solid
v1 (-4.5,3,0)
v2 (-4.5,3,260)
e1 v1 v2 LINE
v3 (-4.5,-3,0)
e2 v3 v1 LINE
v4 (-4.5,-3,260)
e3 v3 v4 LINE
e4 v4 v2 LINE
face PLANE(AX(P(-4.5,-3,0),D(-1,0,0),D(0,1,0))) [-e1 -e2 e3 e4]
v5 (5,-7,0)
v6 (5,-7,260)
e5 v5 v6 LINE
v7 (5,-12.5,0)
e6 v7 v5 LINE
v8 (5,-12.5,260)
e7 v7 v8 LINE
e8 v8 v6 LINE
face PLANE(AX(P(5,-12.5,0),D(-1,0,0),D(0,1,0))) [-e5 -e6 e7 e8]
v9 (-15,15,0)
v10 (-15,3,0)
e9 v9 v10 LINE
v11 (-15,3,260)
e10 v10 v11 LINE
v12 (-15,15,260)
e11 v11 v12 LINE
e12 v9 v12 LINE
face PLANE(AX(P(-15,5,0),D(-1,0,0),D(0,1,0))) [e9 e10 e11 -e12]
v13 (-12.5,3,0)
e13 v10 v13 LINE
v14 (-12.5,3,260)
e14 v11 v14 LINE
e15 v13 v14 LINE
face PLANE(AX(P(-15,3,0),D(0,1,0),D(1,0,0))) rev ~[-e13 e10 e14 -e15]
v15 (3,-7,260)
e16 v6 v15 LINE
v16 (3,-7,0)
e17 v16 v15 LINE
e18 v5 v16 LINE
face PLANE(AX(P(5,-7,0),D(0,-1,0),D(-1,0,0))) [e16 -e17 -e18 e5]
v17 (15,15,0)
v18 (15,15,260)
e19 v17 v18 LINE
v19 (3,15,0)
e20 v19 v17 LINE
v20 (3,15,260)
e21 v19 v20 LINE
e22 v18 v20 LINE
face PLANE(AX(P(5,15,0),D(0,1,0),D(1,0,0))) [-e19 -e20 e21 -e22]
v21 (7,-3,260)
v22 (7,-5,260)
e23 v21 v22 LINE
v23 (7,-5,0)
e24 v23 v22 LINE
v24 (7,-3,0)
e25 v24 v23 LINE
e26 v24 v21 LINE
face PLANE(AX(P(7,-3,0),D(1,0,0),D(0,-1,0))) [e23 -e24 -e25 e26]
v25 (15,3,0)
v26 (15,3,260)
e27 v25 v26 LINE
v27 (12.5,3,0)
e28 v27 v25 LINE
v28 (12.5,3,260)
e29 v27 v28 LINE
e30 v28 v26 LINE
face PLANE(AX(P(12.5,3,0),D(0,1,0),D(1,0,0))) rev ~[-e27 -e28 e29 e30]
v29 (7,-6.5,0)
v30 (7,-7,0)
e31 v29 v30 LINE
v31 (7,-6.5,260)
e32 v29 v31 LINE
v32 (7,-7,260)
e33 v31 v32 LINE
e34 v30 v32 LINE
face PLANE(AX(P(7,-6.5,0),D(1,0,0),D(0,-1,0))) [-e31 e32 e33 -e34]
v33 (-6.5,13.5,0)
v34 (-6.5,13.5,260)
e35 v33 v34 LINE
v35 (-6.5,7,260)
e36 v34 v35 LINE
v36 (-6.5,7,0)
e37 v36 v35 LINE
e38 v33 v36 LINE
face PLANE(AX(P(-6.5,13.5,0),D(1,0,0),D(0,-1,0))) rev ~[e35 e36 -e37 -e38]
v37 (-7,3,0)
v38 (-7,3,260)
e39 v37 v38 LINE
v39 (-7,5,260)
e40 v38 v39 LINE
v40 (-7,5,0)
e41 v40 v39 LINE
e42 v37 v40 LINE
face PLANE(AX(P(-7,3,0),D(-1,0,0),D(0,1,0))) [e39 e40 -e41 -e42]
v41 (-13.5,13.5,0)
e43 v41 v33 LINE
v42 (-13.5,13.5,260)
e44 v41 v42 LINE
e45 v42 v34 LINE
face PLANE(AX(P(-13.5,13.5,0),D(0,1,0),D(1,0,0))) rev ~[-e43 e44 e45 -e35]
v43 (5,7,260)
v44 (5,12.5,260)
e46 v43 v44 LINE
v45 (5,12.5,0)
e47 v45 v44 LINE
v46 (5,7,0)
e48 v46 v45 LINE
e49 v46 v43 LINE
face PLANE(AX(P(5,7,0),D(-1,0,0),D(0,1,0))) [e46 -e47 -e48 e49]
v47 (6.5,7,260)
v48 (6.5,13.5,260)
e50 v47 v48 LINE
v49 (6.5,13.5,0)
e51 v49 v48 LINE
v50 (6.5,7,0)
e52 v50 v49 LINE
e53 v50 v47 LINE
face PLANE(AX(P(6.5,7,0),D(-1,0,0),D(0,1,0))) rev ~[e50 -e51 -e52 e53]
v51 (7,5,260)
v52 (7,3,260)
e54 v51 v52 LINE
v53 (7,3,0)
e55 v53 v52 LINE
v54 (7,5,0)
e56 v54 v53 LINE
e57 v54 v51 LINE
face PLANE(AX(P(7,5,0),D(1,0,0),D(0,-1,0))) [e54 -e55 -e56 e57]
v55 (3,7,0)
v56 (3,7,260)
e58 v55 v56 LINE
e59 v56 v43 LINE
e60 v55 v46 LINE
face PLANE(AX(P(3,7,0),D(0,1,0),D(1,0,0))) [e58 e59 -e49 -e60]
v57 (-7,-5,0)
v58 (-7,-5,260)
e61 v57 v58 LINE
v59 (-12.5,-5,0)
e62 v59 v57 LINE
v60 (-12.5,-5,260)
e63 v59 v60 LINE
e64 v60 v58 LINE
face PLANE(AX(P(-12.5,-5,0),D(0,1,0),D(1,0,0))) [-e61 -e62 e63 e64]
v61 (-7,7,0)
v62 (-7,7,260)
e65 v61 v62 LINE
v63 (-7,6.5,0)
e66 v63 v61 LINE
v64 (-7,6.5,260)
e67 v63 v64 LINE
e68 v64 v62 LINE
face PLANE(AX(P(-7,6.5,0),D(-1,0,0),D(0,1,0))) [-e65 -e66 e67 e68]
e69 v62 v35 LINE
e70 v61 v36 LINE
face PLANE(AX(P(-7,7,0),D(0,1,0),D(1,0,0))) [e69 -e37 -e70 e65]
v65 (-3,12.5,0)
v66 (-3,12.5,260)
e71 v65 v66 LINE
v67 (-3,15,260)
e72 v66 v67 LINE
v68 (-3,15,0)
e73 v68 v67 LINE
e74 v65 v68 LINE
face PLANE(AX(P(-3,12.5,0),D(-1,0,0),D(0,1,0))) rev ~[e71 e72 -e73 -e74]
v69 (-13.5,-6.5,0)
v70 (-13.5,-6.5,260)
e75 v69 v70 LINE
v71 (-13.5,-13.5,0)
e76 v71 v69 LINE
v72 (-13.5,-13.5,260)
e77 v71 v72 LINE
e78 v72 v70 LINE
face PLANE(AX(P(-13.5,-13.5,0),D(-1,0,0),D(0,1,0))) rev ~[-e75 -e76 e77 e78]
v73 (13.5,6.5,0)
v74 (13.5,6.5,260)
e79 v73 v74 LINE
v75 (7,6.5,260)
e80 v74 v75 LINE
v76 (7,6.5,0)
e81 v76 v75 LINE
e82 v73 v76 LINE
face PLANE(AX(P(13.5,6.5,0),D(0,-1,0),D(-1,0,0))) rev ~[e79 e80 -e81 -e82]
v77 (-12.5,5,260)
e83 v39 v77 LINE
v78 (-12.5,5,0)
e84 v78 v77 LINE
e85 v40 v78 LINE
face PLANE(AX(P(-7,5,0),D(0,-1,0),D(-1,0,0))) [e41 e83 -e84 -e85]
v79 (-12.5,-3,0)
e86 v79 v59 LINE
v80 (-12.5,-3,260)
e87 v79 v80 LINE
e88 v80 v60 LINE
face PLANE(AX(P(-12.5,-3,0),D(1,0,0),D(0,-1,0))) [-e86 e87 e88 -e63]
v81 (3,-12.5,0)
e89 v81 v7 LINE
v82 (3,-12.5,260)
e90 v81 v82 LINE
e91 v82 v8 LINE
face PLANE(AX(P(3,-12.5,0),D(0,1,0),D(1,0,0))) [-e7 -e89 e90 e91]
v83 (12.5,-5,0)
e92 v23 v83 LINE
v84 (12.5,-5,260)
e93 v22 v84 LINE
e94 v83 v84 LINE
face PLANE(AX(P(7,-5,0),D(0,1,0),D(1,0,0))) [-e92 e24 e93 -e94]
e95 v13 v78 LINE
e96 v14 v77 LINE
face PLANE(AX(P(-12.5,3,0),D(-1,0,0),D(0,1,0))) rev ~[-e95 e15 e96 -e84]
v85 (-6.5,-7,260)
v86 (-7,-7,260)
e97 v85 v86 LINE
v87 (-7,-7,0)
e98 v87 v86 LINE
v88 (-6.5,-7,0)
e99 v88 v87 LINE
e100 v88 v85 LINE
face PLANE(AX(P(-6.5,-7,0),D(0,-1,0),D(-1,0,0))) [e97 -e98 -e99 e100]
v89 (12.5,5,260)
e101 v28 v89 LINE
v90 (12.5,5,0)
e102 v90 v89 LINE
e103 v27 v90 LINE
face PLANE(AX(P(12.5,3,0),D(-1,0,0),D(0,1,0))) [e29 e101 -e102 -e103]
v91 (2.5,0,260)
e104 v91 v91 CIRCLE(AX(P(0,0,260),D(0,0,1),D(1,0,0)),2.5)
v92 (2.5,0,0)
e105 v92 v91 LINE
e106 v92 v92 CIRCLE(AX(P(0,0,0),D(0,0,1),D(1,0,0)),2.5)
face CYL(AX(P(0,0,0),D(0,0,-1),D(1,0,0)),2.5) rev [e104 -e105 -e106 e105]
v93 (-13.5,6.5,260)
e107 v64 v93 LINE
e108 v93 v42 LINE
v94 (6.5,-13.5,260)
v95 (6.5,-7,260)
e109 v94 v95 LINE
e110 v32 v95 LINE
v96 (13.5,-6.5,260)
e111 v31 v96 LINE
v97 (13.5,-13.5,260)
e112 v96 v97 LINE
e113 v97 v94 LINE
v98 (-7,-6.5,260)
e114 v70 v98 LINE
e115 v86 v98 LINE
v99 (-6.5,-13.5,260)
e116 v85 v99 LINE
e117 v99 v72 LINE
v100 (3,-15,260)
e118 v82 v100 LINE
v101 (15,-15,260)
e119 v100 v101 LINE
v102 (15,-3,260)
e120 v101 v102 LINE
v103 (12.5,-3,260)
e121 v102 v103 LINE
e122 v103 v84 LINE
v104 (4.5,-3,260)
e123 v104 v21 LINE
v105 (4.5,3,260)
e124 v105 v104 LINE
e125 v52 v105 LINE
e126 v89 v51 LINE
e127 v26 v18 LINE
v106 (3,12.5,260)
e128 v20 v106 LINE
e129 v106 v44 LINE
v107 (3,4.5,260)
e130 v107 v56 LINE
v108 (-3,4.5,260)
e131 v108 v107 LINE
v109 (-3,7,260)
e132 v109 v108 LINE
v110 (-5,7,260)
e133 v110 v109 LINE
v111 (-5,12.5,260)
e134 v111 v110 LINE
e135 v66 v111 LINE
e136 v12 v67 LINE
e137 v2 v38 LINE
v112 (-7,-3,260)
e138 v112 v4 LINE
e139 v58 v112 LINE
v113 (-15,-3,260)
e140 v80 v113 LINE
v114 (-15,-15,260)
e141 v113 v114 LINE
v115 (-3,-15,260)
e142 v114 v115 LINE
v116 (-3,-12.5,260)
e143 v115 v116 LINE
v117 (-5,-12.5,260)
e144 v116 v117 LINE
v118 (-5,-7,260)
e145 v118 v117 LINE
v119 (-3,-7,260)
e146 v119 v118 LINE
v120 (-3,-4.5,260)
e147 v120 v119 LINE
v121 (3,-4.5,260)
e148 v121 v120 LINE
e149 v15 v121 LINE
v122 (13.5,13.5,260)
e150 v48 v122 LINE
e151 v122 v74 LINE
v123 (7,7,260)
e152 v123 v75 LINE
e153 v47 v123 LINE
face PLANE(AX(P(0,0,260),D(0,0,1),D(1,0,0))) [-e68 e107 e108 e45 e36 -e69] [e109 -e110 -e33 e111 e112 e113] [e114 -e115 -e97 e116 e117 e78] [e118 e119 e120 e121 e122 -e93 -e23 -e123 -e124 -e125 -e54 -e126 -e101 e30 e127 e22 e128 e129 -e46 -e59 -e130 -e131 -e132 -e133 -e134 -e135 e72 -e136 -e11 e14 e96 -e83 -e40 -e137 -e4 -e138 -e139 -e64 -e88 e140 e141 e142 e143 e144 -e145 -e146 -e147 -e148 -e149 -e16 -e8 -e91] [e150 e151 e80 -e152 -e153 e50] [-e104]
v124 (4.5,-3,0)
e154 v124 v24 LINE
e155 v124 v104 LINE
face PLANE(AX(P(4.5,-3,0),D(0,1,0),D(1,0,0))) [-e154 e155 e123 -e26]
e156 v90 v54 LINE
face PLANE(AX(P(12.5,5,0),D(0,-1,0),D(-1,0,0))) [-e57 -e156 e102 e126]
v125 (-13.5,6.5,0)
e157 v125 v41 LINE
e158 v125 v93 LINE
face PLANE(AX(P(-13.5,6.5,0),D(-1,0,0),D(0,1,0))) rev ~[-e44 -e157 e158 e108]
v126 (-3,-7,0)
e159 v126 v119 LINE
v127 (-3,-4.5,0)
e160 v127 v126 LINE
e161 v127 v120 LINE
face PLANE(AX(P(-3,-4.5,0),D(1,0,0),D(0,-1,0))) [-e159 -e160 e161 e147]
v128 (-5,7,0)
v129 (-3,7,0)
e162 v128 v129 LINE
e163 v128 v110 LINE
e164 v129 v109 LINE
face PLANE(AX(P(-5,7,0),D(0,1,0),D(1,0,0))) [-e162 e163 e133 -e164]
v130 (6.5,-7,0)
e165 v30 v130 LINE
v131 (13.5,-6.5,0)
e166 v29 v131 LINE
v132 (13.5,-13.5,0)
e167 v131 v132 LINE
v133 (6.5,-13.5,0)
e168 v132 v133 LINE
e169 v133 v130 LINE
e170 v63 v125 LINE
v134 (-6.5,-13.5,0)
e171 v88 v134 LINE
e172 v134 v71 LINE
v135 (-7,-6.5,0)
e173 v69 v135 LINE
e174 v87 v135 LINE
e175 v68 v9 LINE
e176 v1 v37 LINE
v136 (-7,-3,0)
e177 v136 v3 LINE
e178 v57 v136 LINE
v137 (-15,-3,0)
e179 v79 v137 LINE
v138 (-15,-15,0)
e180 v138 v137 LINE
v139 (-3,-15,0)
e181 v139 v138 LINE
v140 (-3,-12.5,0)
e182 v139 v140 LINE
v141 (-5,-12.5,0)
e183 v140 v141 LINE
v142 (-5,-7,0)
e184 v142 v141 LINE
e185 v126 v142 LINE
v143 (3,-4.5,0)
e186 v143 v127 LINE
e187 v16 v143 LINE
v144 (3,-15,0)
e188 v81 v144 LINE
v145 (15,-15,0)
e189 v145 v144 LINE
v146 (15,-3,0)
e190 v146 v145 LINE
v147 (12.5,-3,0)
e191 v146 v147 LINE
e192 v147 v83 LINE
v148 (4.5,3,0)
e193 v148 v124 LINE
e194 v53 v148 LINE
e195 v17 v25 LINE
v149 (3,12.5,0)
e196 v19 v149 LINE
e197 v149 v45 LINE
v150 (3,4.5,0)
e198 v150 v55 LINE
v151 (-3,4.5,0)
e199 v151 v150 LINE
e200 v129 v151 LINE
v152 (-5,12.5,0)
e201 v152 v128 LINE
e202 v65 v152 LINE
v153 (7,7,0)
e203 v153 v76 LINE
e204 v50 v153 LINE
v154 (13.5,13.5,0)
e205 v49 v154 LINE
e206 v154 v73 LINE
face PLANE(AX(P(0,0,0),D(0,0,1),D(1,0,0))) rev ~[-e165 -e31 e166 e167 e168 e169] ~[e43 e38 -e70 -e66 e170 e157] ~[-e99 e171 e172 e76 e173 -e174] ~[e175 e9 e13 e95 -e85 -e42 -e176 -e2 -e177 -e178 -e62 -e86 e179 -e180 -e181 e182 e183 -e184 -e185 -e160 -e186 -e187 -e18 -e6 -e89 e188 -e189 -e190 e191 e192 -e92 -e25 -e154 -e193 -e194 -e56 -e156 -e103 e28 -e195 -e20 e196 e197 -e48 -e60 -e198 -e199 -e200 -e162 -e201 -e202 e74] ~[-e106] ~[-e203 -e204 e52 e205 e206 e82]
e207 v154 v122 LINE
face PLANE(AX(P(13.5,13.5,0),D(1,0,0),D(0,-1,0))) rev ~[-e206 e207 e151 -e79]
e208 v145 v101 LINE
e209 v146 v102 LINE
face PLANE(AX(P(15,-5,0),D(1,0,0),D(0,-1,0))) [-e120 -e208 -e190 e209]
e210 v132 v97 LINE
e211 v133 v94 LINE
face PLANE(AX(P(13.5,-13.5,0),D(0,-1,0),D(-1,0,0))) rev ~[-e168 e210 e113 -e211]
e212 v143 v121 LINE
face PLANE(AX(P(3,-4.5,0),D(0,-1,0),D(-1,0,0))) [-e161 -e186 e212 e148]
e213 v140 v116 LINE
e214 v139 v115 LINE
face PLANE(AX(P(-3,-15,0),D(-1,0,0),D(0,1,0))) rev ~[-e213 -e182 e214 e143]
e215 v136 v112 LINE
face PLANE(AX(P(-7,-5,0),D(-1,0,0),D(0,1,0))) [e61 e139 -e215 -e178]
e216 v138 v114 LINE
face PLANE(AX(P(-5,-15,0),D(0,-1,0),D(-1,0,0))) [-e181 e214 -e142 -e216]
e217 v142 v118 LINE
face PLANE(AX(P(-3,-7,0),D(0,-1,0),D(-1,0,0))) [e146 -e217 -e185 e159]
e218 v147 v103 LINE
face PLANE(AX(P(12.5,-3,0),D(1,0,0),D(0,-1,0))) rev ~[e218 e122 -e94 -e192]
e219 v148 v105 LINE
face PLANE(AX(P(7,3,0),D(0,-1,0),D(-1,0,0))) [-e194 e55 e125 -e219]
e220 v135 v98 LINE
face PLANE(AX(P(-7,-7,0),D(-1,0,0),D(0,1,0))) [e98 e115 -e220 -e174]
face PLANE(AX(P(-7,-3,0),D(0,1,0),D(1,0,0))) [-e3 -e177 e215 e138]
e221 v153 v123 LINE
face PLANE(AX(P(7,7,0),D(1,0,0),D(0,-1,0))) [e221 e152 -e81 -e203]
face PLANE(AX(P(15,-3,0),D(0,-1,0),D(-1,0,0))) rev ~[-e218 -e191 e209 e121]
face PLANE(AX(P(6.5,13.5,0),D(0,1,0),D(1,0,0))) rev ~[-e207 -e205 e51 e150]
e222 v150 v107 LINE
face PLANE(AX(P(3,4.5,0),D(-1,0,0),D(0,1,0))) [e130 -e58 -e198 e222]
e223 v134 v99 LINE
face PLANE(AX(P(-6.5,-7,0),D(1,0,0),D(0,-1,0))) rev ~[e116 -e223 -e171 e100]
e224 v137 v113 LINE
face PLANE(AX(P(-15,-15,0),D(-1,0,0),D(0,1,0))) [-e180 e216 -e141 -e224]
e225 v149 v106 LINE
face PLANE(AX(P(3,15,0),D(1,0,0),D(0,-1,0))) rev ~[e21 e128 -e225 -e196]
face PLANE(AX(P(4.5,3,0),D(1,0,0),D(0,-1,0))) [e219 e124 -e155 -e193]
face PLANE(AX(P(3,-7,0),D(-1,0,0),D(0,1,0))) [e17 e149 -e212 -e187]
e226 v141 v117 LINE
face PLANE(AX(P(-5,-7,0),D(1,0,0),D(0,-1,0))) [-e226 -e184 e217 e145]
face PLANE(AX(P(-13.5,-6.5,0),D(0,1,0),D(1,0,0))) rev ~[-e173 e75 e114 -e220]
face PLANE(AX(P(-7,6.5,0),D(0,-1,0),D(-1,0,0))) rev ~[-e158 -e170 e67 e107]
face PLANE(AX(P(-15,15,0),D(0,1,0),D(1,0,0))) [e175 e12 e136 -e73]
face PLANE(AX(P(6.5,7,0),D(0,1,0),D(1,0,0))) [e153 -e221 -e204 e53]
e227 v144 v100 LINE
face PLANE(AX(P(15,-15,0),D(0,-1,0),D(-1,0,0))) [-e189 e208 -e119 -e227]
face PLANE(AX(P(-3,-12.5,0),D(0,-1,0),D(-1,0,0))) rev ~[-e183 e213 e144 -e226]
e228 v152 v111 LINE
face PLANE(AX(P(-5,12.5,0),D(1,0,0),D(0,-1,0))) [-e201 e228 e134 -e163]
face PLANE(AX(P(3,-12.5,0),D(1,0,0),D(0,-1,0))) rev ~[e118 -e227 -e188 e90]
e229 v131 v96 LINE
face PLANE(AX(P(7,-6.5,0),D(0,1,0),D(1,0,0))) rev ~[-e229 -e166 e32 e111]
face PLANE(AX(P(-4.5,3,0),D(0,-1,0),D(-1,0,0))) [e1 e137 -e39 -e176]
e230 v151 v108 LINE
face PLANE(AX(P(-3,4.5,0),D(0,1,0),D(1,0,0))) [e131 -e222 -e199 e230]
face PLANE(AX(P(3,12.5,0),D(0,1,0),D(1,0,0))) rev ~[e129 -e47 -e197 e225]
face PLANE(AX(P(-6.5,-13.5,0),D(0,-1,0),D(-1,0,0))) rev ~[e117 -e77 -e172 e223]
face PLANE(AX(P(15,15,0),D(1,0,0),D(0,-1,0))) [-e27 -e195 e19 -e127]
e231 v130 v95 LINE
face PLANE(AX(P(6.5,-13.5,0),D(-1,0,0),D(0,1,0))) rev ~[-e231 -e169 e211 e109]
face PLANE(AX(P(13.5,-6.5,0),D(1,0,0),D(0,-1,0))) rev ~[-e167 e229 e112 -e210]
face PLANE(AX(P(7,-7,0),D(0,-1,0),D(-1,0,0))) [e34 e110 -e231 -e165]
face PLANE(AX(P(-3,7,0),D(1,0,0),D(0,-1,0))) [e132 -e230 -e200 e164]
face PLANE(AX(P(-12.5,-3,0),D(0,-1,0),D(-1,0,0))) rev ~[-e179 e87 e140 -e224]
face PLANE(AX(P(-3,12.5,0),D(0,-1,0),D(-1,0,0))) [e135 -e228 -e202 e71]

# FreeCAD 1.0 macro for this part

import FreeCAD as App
import Part
import Sketcher

V = App.Vector
Q = App.Units.Quantity


def add_polygon(sketch, points):
    """Adds a closed chain of lines whose ends are joined by coincident constraints."""
    first, n = sketch.GeometryCount, len(points)
    for a, b in zip(points, points[1:] + points[:1]):
        sketch.addGeometry(Part.LineSegment(App.Vector(*a, 0), App.Vector(*b, 0)), False)
    for i in range(n):
        sketch.addConstraint(Sketcher.Constraint("Coincident", first + i, 2, first + (i + 1) % n, 1))

doc = App.newDocument("Part")
body = doc.addObject("PartDesign::Body", "Body")

sketch1 = body.newObject("Sketcher::SketchObject", "Sketch")
sketch1.AttachmentSupport = (doc.getObject("XY_Plane"), [""])
sketch1.MapMode = "FlatFace"
add_polygon(sketch1, [(-15, 15), (-15, 3), (-12.5, 3), (-12.5, 5), (-7, 5), (-7, 3), (-4.5, 3), (-4.5, -3), (-7, -3), (-7, -5), (-12.5, -5), (-12.5, -3), (-15, -3), (-15, -15), (-3, -15), (-3, -12.5), (-5, -12.5), (-5, -7), (-3, -7), (-3, -4.5), (3, -4.5), (3, -7), (5, -7), (5, -12.5), (3, -12.5), (3, -15), (15, -15), (15, -3), (12.5, -3), (12.5, -5), (7, -5), (7, -3), (4.5, -3), (4.5, 3), (7, 3), (7, 5), (12.5, 5), (12.5, 3), (15, 3), (15, 15), (3, 15), (3, 12.5), (5, 12.5), (5, 7), (3, 7), (3, 4.5), (-3, 4.5), (-3, 7), (-5, 7), (-5, 12.5), (-3, 12.5), (-3, 15)])
sketch1.addGeometry(Part.Circle(V(0, 0, 0), V(0, 0, 1), 2.5), False)
sketch1.addConstraint(Sketcher.Constraint("Vertical", 0))
sketch1.addConstraint(Sketcher.Constraint("Horizontal", 1))
sketch1.addConstraint(Sketcher.Constraint("Vertical", 2))
sketch1.addConstraint(Sketcher.Constraint("Horizontal", 3))
sketch1.addConstraint(Sketcher.Constraint("Vertical", 4))
sketch1.addConstraint(Sketcher.Constraint("Horizontal", 5))
sketch1.addConstraint(Sketcher.Constraint("Vertical", 6))
sketch1.addConstraint(Sketcher.Constraint("Horizontal", 7))
sketch1.addConstraint(Sketcher.Constraint("Vertical", 8))
sketch1.addConstraint(Sketcher.Constraint("Horizontal", 9))
sketch1.addConstraint(Sketcher.Constraint("Vertical", 10))
sketch1.addConstraint(Sketcher.Constraint("Horizontal", 11))
sketch1.addConstraint(Sketcher.Constraint("Vertical", 12))
sketch1.addConstraint(Sketcher.Constraint("Horizontal", 13))
sketch1.addConstraint(Sketcher.Constraint("Vertical", 14))
sketch1.addConstraint(Sketcher.Constraint("Horizontal", 15))
sketch1.addConstraint(Sketcher.Constraint("Vertical", 16))
sketch1.addConstraint(Sketcher.Constraint("Horizontal", 17))
sketch1.addConstraint(Sketcher.Constraint("Vertical", 18))
sketch1.addConstraint(Sketcher.Constraint("Horizontal", 19))
sketch1.addConstraint(Sketcher.Constraint("Vertical", 20))
sketch1.addConstraint(Sketcher.Constraint("Horizontal", 21))
sketch1.addConstraint(Sketcher.Constraint("Vertical", 22))
sketch1.addConstraint(Sketcher.Constraint("Horizontal", 23))
sketch1.addConstraint(Sketcher.Constraint("Vertical", 24))
sketch1.addConstraint(Sketcher.Constraint("Horizontal", 25))
sketch1.addConstraint(Sketcher.Constraint("Vertical", 26))
sketch1.addConstraint(Sketcher.Constraint("Horizontal", 27))
sketch1.addConstraint(Sketcher.Constraint("Vertical", 28))
sketch1.addConstraint(Sketcher.Constraint("Horizontal", 29))
sketch1.addConstraint(Sketcher.Constraint("Vertical", 30))
sketch1.addConstraint(Sketcher.Constraint("Horizontal", 31))
sketch1.addConstraint(Sketcher.Constraint("Vertical", 32))
sketch1.addConstraint(Sketcher.Constraint("Horizontal", 33))
sketch1.addConstraint(Sketcher.Constraint("Vertical", 34))
sketch1.addConstraint(Sketcher.Constraint("Horizontal", 35))
sketch1.addConstraint(Sketcher.Constraint("Vertical", 36))
sketch1.addConstraint(Sketcher.Constraint("Horizontal", 37))
sketch1.addConstraint(Sketcher.Constraint("Vertical", 38))
sketch1.addConstraint(Sketcher.Constraint("Horizontal", 39))
sketch1.addConstraint(Sketcher.Constraint("Vertical", 40))
sketch1.addConstraint(Sketcher.Constraint("Horizontal", 41))
sketch1.addConstraint(Sketcher.Constraint("Vertical", 42))
sketch1.addConstraint(Sketcher.Constraint("Horizontal", 43))
sketch1.addConstraint(Sketcher.Constraint("Vertical", 44))
sketch1.addConstraint(Sketcher.Constraint("Horizontal", 45))
sketch1.addConstraint(Sketcher.Constraint("Vertical", 46))
sketch1.addConstraint(Sketcher.Constraint("Horizontal", 47))
sketch1.addConstraint(Sketcher.Constraint("Vertical", 48))
sketch1.addConstraint(Sketcher.Constraint("Horizontal", 49))
sketch1.addConstraint(Sketcher.Constraint("Vertical", 50))
sketch1.addConstraint(Sketcher.Constraint("Horizontal", 51))
sketch1.addConstraint(Sketcher.Constraint("Coincident", 52, 3, -1, 1))
sketch1.addConstraint(Sketcher.Constraint("Symmetric", 0, 2, 26, 2, -1, 1))
sketch1.addConstraint(Sketcher.Constraint("Symmetric", 2, 2, 28, 2, -1, 1))
sketch1.addConstraint(Sketcher.Constraint("Symmetric", 4, 2, 30, 2, -1, 1))
sketch1.addConstraint(Sketcher.Constraint("Symmetric", 6, 2, 32, 2, -1, 1))
sketch1.addConstraint(Sketcher.Constraint("Symmetric", 8, 2, 34, 2, -1, 1))
sketch1.addConstraint(Sketcher.Constraint("Symmetric", 10, 2, 36, 2, -1, 1))
sketch1.addConstraint(Sketcher.Constraint("Symmetric", 12, 2, 38, 2, -1, 1))
sketch1.addConstraint(Sketcher.Constraint("Symmetric", 14, 2, 40, 2, -1, 1))
sketch1.addConstraint(Sketcher.Constraint("Symmetric", 16, 2, 42, 2, -1, 1))
sketch1.addConstraint(Sketcher.Constraint("Symmetric", 18, 2, 44, 2, -1, 1))
sketch1.addConstraint(Sketcher.Constraint("Symmetric", 20, 2, 46, 2, -1, 1))
sketch1.addConstraint(Sketcher.Constraint("Symmetric", 22, 2, 48, 2, -1, 1))
sketch1.addConstraint(Sketcher.Constraint("Symmetric", 24, 2, 50, 2, -1, 1))
sketch1.addConstraint(Sketcher.Constraint("Symmetric", 17, 2, 20, 2, -2))
sketch1.addConstraint(Sketcher.Constraint("Symmetric", 15, 2, 22, 2, -2))
sketch1.addConstraint(Sketcher.Constraint("Symmetric", 13, 2, 24, 2, -2))
sketch1.addConstraint(Sketcher.Constraint("Symmetric", 11, 2, 26, 2, -2))
sketch1.addConstraint(Sketcher.Constraint("Symmetric", 9, 2, 28, 2, -2))
sketch1.addConstraint(Sketcher.Constraint("Symmetric", 7, 2, 30, 2, -2))
sketch1.addConstraint(Sketcher.Constraint("Horizontal", 1, 2, 4, 2))
sketch1.addConstraint(Sketcher.Constraint("Vertical", 14, 2, 17, 2))
sketch1.addConstraint(Sketcher.Constraint("Equal", 1, 5))
sketch1.addConstraint(Sketcher.Constraint("Equal", 51, 0))
sketch1.addConstraint(Sketcher.Constraint("Equal", 49, 2))
sketch1.addConstraint(Sketcher.Constraint("Equal", 45, 6))
sketch1.addConstraint(Sketcher.Constraint("Equal", 37, 14))
sketch1.addConstraint(Sketcher.Constraint("Equal", 35, 16))
sketch1.addConstraint(Sketcher.Constraint("Equal", 14, 18))
sketch1.addConstraint(Sketcher.Constraint("Diameter", 52, Q("5 mm")))
sketch1.addConstraint(Sketcher.Constraint("DistanceX", 19, 1, 19, 2, Q("6 mm")))
sketch1.addConstraint(Sketcher.Constraint("DistanceY", -1, 1, 2, 2, Q("5 mm")))
sketch1.addConstraint(Sketcher.Constraint("DistanceX", 3, 2, -1, 1, Q("7 mm")))
sketch1.addConstraint(Sketcher.Constraint("DistanceY", 12, 2, 9, 2, Q("10 mm")))
sketch1.addConstraint(Sketcher.Constraint("DistanceX", 6, 2, 13, 2, Q("1.5 mm")))
pad1 = body.newObject("PartDesign::Pad", "Pad")
pad1.Profile = sketch1
pad1.Length = 260

sketch2 = body.newObject("Sketcher::SketchObject", "Sketch001")
sketch2.AttachmentSupport = (doc.getObject("XY_Plane"), [""])
sketch2.MapMode = "FlatFace"
add_polygon(sketch2, [(-7, 7), (-6.5, 7), (-6.5, 13.5), (-13.5, 13.5), (-13.5, 6.5), (-7, 6.5)])
sketch2.addConstraint(Sketcher.Constraint("Horizontal", 0))
sketch2.addConstraint(Sketcher.Constraint("Vertical", 1))
sketch2.addConstraint(Sketcher.Constraint("Horizontal", 2))
sketch2.addConstraint(Sketcher.Constraint("Vertical", 3))
sketch2.addConstraint(Sketcher.Constraint("Horizontal", 4))
sketch2.addConstraint(Sketcher.Constraint("Vertical", 5))
sketch2.addConstraint(Sketcher.Constraint("Equal", 4, 1))
sketch2.addConstraint(Sketcher.Constraint("Equal", 2, 3))
sketch2.addConstraint(Sketcher.Constraint("DistanceX", 2, 2, 2, 1, Q("7 mm")))
sketch2.addConstraint(Sketcher.Constraint("DistanceY", -1, 1, 0, 2, Q("7 mm")))
sketch2.addConstraint(Sketcher.Constraint("DistanceX", 4, 2, -1, 1, Q("7 mm")))
sketch2.addConstraint(Sketcher.Constraint("DistanceX", 0, 1, 0, 2, Q("0.5 mm")))
pocket1 = body.newObject("PartDesign::Pocket", "Pocket")
pocket1.Profile = sketch2
pocket1.Length = 260
pocket1.Reversed = True
doc.recompute()

polarpattern = body.newObject("PartDesign::PolarPattern", "PolarPattern")
polarpattern.Originals = [pocket1]
polarpattern.Axis = (doc.getObject("Z_Axis"), [""])
polarpattern.Angle = 360
polarpattern.Occurrences = 4
body.Tip = polarpattern

doc.recompute()
